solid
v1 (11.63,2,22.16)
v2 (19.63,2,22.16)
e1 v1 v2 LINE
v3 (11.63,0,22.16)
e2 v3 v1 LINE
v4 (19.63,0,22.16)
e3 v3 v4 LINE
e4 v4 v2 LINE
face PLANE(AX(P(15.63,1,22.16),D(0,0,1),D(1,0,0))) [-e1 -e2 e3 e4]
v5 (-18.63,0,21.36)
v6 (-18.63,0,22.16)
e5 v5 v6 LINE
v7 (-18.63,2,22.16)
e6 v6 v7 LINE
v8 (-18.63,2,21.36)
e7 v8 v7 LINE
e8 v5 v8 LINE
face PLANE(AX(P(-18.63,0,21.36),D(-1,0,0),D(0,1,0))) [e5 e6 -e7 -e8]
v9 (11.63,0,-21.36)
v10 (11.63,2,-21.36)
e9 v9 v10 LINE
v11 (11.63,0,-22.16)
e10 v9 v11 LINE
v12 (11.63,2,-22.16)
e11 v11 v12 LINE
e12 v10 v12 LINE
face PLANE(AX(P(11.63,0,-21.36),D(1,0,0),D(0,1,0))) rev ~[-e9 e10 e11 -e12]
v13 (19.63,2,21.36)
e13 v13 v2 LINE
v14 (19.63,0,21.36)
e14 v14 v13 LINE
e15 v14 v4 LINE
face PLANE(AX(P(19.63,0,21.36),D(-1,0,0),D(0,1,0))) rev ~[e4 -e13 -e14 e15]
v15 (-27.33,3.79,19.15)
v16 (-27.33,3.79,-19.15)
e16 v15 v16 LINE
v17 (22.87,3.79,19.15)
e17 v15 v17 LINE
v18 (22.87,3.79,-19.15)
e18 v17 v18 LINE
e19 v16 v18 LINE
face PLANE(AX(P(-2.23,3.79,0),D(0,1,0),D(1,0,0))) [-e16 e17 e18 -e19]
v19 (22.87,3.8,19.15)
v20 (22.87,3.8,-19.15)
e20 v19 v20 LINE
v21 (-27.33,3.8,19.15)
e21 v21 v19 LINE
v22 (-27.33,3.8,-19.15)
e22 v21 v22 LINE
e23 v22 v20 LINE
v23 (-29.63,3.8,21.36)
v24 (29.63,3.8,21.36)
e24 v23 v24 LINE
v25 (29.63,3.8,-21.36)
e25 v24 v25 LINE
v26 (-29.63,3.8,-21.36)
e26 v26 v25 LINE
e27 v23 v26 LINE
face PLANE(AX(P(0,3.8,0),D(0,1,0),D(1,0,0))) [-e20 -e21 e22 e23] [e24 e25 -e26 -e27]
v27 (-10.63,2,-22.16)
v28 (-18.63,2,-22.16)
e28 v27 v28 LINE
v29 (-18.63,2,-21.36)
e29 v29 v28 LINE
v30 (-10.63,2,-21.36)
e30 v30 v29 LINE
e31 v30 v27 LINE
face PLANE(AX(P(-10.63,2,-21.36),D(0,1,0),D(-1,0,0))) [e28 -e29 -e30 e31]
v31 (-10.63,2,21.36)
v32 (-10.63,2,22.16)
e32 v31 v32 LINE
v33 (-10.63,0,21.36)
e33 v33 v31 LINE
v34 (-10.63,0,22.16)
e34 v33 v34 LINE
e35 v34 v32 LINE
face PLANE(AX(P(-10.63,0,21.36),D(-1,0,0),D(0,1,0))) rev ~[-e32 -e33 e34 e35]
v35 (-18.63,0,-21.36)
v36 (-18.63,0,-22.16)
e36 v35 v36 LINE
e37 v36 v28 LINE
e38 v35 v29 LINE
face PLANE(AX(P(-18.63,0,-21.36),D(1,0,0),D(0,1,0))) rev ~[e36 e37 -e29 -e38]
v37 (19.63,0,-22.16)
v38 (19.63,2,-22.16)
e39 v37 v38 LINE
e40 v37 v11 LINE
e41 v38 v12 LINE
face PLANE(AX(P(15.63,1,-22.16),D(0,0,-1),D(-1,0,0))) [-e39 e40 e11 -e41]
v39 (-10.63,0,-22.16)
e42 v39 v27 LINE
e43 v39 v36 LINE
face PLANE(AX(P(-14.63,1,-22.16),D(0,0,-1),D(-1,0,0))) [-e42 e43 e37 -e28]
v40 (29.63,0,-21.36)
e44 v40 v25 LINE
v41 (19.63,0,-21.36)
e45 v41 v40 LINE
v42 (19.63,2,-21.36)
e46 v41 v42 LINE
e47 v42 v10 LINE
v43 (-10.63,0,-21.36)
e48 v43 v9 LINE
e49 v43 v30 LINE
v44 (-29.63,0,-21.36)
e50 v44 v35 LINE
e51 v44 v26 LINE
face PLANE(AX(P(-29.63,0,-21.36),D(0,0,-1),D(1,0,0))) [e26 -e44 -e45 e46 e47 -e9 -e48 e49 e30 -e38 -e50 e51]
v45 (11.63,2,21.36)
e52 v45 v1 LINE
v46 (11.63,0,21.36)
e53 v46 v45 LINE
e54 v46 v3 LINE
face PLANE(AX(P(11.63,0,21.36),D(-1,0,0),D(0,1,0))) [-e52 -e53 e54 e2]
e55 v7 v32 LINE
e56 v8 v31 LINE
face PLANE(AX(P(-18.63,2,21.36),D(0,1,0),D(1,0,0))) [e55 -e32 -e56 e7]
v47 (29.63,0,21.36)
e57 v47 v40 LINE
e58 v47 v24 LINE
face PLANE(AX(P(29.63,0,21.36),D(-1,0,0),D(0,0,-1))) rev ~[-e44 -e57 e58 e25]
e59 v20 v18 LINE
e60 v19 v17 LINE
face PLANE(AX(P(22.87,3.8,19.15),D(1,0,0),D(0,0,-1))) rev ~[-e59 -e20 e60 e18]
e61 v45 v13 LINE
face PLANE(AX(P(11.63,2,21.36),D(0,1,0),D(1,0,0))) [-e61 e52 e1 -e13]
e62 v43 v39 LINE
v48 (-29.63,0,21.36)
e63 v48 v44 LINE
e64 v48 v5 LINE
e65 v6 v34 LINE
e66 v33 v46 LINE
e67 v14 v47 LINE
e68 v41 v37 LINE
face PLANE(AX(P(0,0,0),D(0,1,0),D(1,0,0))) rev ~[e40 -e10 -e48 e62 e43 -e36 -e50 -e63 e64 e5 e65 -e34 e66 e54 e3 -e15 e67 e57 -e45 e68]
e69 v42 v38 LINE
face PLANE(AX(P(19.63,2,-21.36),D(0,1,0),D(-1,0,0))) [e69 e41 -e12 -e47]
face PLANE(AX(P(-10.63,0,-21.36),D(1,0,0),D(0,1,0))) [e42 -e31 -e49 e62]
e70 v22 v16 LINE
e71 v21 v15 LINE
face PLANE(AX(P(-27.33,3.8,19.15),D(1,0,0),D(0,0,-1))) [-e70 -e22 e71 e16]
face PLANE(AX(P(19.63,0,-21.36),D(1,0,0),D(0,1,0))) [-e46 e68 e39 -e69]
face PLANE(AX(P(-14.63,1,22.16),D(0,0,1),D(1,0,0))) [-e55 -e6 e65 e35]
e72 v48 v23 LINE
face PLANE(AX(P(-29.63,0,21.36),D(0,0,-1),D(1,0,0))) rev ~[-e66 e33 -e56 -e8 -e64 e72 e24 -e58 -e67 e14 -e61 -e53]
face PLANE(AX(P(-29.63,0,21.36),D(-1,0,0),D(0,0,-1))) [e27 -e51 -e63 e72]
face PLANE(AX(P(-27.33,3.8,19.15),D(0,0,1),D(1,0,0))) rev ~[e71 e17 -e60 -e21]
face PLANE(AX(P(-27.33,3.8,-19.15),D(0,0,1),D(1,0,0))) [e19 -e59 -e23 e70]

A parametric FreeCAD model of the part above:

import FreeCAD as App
import Part
import Sketcher
Q = App.Units.Quantity


def add_polygon(sketch, points):
    """Adds a closed chain of lines whose ends are joined by coincident constraints."""
    first, n = sketch.GeometryCount, len(points)
    for a, b in zip(points, points[1:] + points[:1]):
        sketch.addGeometry(Part.LineSegment(App.Vector(*a, 0), App.Vector(*b, 0)), False)
    for i in range(n):
        sketch.addConstraint(Sketcher.Constraint("Coincident", first + i, 2, first + (i + 1) % n, 1))

doc = App.newDocument("Part")
body = doc.addObject("PartDesign::Body", "Body")

# Sketch on XZ plane
sketch1 = doc.addObject("Sketcher::SketchObject", "Sketch")
body.addObject(sketch1)
sketch1.AttachmentSupport = (doc.XZ_Plane, [""])
sketch1.MapMode = "FlatFace"
add_polygon(sketch1, [(-30, -21), (-30, 21), (30, 21), (30, -21)])  # lines 0-3
sketch1.addConstraint([
    Sketcher.Constraint("Vertical", 0),
    Sketcher.Constraint("Horizontal", 1),
    Sketcher.Constraint("Vertical", 2),
    Sketcher.Constraint("Horizontal", 3),
    Sketcher.Constraint("Symmetric", 0, 2, 2, 2, -1, 1),
    Sketcher.Constraint("DistanceX", 1, 1, 1, 2, Q("59.26 mm")),
    Sketcher.Constraint("DistanceY", 0, 1, 0, 2, Q("42.72 mm")),
])
pad1 = doc.addObject("PartDesign::Pad", "Pad")
body.addObject(pad1)
pad1.Profile = sketch1
pad1.Length = 3.8
pad1.Reversed = True

# Sketch on XY plane
sketch2 = doc.addObject("Sketcher::SketchObject", "Sketch001")
body.addObject(sketch2)
sketch2.AttachmentSupport = (doc.XY_Plane, [""])
sketch2.MapMode = "FlatFace"
sketch2.AttachmentOffset = App.Placement(App.Vector(0, 0, 21.36), App.Rotation())
add_polygon(sketch2, [(-18.6, 2), (-18.6, 0), (-10.6, 0), (-10.6, 2)])  # lines 0-3
add_polygon(sketch2, [(11.6, 2), (11.6, 0), (19.6, 0), (19.6, 2)])  # lines 4-7
sketch2.addConstraint([
    Sketcher.Constraint("Vertical", 0),
    Sketcher.Constraint("Horizontal", 1),
    Sketcher.Constraint("Vertical", 2),
    Sketcher.Constraint("Horizontal", 3),
    Sketcher.Constraint("Vertical", 4),
    Sketcher.Constraint("Horizontal", 5),
    Sketcher.Constraint("Vertical", 6),
    Sketcher.Constraint("Horizontal", 7),
    Sketcher.Constraint("PointOnObject", 0, 2, -1),
    Sketcher.Constraint("PointOnObject", 4, 2, -1),
    Sketcher.Constraint("Horizontal", 3, 2, 6, 2),
    Sketcher.Constraint("Equal", 3, 5),
    Sketcher.Constraint("DistanceX", 1, 1, 1, 2, Q("8 mm")),
    Sketcher.Constraint("DistanceY", 0, 2, 0, 1, Q("2 mm")),
    Sketcher.Constraint("DistanceX", 0, 2, -1, 1, Q("18.63 mm")),
    Sketcher.Constraint("DistanceX", -1, 1, 4, 2, Q("11.63 mm")),
])
pad2 = doc.addObject("PartDesign::Pad", "Pad001")
body.addObject(pad2)
pad2.Profile = sketch2
pad2.Length = 0.8

# Sketch on XY plane
sketch3 = doc.addObject("Sketcher::SketchObject", "Sketch002")
body.addObject(sketch3)
sketch3.AttachmentSupport = (doc.XY_Plane, [""])
sketch3.MapMode = "FlatFace"
sketch3.AttachmentOffset = App.Placement(App.Vector(0, 0, -21.36), App.Rotation())
add_polygon(sketch3, [(-10.6, 2), (-10.6, 0), (-18.6, 0), (-18.6, 2)])  # lines 0-3
add_polygon(sketch3, [(19.6, 2), (19.6, 0), (11.6, 0), (11.6, 2)])  # lines 4-7
sketch3.addConstraint([
    Sketcher.Constraint("Vertical", 0),
    Sketcher.Constraint("Horizontal", 1),
    Sketcher.Constraint("Vertical", 2),
    Sketcher.Constraint("Horizontal", 3),
    Sketcher.Constraint("Vertical", 4),
    Sketcher.Constraint("Horizontal", 5),
    Sketcher.Constraint("Vertical", 6),
    Sketcher.Constraint("Horizontal", 7),
    Sketcher.Constraint("PointOnObject", 0, 2, -1),
    Sketcher.Constraint("PointOnObject", 4, 2, -1),
    Sketcher.Constraint("Horizontal", 3, 2, 6, 2),
    Sketcher.Constraint("Equal", 3, 5),
    Sketcher.Constraint("DistanceX", 1, 2, 1, 1, Q("8 mm")),
    Sketcher.Constraint("DistanceY", 0, 2, 0, 1, Q("2 mm")),
    Sketcher.Constraint("DistanceX", 0, 2, -1, 1, Q("10.63 mm")),
    Sketcher.Constraint("DistanceX", -1, 1, 4, 2, Q("19.63 mm")),
])
pad3 = doc.addObject("PartDesign::Pad", "Pad002")
body.addObject(pad3)
pad3.Profile = sketch3
pad3.Length = 0.8
pad3.Reversed = True

# Sketch on XZ plane
sketch4 = doc.addObject("Sketcher::SketchObject", "Sketch003")
body.addObject(sketch4)
sketch4.AttachmentSupport = (doc.XZ_Plane, [""])
sketch4.MapMode = "FlatFace"
sketch4.AttachmentOffset = App.Placement(App.Vector(0, 0, -3.8), App.Rotation())
add_polygon(sketch4, [(-27, -19), (-27, 19), (23, 19), (23, -19)])  # lines 0-3
sketch4.addConstraint([
    Sketcher.Constraint("Vertical", 0),
    Sketcher.Constraint("Horizontal", 1),
    Sketcher.Constraint("Vertical", 2),
    Sketcher.Constraint("Horizontal", 3),
    Sketcher.Constraint("DistanceX", 1, 1, 1, 2, Q("50.2 mm")),
    Sketcher.Constraint("DistanceY", 0, 1, 0, 2, Q("38.3 mm")),
    Sketcher.Constraint("DistanceX", 0, 2, -1, 1, Q("27.33 mm")),
    Sketcher.Constraint("DistanceY", -1, 1, 0, 2, Q("19.15 mm")),
])
pocket1 = doc.addObject("PartDesign::Pocket", "Pocket")
body.addObject(pocket1)
pocket1.Profile = sketch4
pocket1.Length = 0.01
pocket1.Reversed = True

doc.recompute()
